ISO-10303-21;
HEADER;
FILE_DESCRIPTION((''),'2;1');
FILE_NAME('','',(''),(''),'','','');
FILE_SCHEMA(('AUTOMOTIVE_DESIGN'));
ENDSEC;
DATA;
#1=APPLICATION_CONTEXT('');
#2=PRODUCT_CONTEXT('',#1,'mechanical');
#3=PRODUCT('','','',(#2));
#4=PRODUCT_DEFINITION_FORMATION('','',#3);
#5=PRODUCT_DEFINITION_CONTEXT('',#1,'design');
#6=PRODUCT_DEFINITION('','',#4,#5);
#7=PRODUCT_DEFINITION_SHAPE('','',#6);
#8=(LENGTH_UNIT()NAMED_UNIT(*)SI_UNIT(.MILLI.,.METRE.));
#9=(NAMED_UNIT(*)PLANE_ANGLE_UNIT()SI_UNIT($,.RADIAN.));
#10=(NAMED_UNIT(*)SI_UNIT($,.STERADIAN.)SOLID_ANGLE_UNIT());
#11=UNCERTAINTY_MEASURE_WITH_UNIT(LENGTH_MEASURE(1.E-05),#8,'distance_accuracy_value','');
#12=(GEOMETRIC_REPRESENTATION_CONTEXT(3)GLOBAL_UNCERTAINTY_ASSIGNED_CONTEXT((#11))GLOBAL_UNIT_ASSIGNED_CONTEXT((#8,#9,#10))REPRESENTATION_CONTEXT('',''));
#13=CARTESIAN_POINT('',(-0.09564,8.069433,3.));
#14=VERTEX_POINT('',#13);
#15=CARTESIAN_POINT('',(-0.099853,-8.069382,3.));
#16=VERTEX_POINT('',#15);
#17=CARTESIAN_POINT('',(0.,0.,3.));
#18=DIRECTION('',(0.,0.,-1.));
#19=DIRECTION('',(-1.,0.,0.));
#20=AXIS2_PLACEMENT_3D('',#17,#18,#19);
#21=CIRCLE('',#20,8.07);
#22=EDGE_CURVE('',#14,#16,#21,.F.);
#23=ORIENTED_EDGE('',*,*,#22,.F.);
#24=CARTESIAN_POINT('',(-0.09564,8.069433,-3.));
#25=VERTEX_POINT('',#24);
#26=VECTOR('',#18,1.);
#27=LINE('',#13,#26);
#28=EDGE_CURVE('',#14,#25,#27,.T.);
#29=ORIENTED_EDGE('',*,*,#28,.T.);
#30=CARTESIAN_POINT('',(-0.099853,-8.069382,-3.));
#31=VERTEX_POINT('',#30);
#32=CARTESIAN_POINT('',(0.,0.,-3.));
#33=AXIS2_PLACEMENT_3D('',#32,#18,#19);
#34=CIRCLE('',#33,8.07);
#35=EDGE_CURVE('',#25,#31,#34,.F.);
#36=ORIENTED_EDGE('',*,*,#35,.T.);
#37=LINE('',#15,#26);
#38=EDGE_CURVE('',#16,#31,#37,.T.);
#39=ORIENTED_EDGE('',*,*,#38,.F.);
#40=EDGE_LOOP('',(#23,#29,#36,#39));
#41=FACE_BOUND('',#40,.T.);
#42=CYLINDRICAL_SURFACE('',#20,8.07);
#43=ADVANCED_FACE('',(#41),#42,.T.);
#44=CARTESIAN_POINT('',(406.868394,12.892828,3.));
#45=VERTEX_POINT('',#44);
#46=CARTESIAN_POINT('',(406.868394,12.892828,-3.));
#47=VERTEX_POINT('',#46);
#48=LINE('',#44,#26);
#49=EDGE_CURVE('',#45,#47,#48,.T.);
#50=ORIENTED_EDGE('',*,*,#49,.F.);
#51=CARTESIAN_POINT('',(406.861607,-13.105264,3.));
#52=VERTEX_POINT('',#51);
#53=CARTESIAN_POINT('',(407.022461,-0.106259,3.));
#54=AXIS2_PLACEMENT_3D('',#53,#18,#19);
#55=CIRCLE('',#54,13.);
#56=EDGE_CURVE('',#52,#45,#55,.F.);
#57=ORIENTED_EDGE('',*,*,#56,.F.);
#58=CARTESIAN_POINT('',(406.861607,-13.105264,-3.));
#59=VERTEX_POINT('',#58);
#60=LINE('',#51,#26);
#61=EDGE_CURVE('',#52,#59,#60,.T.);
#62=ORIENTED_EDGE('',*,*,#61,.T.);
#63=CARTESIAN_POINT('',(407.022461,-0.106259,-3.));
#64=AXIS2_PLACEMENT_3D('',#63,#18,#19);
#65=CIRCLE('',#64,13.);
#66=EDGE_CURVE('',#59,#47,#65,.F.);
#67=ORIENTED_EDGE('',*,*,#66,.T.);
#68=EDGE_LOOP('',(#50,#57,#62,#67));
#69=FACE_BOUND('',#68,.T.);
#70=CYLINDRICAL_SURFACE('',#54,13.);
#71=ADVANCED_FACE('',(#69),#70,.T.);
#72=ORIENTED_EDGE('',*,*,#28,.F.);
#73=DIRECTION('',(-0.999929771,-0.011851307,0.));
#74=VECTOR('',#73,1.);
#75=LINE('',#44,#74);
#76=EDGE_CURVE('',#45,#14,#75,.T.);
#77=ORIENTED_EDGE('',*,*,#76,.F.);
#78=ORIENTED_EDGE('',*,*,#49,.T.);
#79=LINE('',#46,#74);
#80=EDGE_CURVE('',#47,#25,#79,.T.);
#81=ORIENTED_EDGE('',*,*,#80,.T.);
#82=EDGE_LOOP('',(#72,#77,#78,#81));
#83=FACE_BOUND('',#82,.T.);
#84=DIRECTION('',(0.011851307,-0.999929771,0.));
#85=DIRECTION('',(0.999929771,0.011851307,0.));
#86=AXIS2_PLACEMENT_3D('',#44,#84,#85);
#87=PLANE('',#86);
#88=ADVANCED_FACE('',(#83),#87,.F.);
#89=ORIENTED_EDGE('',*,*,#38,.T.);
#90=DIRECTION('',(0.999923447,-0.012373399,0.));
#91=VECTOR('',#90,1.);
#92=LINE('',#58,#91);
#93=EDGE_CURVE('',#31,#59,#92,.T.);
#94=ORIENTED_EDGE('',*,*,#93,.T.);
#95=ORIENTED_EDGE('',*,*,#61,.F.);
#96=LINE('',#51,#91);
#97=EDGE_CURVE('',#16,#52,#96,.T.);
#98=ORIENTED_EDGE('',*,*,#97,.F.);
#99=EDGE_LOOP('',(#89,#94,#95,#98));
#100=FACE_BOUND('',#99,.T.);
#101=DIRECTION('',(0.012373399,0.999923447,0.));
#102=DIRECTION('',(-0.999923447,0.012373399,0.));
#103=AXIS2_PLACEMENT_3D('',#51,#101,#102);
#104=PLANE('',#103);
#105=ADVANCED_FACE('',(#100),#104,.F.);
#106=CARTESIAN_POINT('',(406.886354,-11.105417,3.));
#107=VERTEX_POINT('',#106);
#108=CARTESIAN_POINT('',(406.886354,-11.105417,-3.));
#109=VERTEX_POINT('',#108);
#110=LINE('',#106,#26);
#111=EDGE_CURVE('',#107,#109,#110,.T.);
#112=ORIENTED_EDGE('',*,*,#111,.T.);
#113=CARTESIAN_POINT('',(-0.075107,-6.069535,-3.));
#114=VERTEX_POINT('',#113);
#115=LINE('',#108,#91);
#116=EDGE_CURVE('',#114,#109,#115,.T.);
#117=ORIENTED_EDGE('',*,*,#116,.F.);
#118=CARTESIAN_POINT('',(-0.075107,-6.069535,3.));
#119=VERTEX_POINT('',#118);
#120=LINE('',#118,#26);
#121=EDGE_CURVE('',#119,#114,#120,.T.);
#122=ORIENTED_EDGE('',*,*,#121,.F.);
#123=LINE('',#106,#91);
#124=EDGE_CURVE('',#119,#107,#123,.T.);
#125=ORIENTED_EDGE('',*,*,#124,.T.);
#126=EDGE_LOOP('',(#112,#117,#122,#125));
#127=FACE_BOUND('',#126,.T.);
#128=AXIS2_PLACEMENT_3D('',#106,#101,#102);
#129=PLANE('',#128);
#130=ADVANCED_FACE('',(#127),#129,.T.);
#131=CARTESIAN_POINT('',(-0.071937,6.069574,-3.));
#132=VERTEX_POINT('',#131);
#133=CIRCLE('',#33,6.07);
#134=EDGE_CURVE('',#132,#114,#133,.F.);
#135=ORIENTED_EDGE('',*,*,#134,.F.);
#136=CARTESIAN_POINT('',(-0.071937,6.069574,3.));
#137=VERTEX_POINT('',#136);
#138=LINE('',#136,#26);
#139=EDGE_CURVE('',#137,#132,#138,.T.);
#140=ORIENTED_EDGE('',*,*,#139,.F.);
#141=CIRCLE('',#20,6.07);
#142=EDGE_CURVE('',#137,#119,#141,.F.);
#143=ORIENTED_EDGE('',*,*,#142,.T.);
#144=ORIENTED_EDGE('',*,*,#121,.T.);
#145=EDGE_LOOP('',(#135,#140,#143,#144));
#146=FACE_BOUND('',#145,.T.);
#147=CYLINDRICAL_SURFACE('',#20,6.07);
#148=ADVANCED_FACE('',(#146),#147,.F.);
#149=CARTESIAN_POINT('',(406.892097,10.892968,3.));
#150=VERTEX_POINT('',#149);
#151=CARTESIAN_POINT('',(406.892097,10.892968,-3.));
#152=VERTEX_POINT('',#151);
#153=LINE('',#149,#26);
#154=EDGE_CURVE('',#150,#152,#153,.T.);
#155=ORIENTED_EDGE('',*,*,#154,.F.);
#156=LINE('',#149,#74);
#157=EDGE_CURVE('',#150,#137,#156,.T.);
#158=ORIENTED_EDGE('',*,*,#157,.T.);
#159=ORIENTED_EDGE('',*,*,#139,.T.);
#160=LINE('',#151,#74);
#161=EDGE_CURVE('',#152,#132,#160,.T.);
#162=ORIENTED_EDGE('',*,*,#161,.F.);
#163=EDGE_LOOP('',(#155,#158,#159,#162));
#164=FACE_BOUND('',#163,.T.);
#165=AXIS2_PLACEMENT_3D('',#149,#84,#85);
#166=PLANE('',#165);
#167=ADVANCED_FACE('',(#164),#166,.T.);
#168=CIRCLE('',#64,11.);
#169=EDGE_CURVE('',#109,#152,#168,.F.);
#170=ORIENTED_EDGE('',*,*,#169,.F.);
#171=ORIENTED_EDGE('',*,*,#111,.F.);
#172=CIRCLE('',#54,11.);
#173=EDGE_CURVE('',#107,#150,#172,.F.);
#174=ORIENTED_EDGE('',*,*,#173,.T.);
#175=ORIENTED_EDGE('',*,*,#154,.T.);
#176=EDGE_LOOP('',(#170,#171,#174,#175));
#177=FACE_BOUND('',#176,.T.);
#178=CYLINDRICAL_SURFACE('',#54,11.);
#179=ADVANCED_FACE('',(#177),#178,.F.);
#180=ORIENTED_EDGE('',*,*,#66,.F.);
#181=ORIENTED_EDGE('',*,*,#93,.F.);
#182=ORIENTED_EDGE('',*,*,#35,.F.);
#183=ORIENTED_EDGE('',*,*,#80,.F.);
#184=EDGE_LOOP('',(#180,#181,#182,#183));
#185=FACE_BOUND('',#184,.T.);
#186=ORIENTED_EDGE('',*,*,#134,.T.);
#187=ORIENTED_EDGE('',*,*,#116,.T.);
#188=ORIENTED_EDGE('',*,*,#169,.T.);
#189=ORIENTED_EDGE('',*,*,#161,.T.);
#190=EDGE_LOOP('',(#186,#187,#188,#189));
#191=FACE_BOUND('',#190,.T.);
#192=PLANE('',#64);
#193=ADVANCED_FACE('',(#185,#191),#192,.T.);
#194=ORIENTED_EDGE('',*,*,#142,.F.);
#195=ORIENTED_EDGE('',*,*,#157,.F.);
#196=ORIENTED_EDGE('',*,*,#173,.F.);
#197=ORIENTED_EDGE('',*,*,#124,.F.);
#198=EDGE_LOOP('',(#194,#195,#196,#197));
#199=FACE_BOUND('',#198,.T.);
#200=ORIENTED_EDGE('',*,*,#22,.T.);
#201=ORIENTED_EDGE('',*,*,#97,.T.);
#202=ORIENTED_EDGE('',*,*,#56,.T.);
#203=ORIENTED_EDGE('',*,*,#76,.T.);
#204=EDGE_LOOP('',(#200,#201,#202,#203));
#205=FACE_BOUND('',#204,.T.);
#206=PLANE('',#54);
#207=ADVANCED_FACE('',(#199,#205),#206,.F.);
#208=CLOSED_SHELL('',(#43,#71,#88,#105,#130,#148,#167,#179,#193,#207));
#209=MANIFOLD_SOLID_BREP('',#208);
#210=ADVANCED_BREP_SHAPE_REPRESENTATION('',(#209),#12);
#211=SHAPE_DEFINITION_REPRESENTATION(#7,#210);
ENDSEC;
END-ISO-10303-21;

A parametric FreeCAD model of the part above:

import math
import FreeCAD as App
import Part
import Sketcher
from FreeCAD import Vector
Q = App.Units.Quantity

doc = App.newDocument("Part")
body = doc.addObject("PartDesign::Body", "Body")

sketch1 = body.newObject("Sketcher::SketchObject", "Sketch")
sketch1.AttachmentSupport = (doc.getObject("XY_Plane"), [""])
sketch1.MapMode = "FlatFace"
sketch1.addGeometry([
    Part.LineSegment(Vector(407, 13, 0), Vector(0, 8, 0)),
    Part.ArcOfCircle(Part.Circle(Vector(0, 0, 0), Vector(0, 0, 1), 8), math.radians(91), math.radians(269)),
    Part.LineSegment(Vector(0, -8, 0), Vector(407, -13, 0)),
    Part.ArcOfCircle(Part.Circle(Vector(407, 0, 0), Vector(0, 0, 1), 13), math.radians(-91), math.radians(91)),
    Part.LineSegment(Vector(0, 6, 0), Vector(407, 11, 0)),
    Part.ArcOfCircle(Part.Circle(Vector(407, 0, 0), Vector(0, 0, 1), 11), math.radians(-91), math.radians(91)),
    Part.LineSegment(Vector(407, -11, 0), Vector(0, -6, 0)),
    Part.ArcOfCircle(Part.Circle(Vector(0, 0, 0), Vector(0, 0, 1), 6), math.radians(91), math.radians(269)),
], False)
sketch1.addConstraint([
    Sketcher.Constraint("Tangent", 0, 2, 1, 1),
    Sketcher.Constraint("Tangent", 1, 2, 2, 1),
    Sketcher.Constraint("Tangent", 2, 2, 3, 1),
    Sketcher.Constraint("Tangent", 3, 2, 0, 1),
    Sketcher.Constraint("Tangent", 4, 2, 5, 2),
    Sketcher.Constraint("Tangent", 5, 1, 6, 1),
    Sketcher.Constraint("Tangent", 6, 2, 7, 2),
    Sketcher.Constraint("Tangent", 7, 1, 4, 1),
    Sketcher.Constraint("Coincident", 1, 3, -1, 1),
    Sketcher.Constraint("Coincident", 7, 3, -1, 1),
    Sketcher.Constraint("Coincident", 5, 3, 3, 3),
    Sketcher.Constraint("Parallel", 0, 4),
    Sketcher.Constraint("Radius", 3, Q("13 mm")),
    Sketcher.Constraint("Radius", 5, Q("11 mm")),
    Sketcher.Constraint("Radius", 1, Q("8.07 mm")),
    Sketcher.Constraint("DistanceX", 0, 2, 3, 3, Q("407.118101 mm")),
    Sketcher.Constraint("DistanceX", -1, 1, 3, 3, Q("407.022461 mm")),
])
pad1 = body.newObject("PartDesign::Pad", "Pad")
pad1.Profile = sketch1
pad1.Length = 6
pad1.Midplane = True

doc.recompute()
